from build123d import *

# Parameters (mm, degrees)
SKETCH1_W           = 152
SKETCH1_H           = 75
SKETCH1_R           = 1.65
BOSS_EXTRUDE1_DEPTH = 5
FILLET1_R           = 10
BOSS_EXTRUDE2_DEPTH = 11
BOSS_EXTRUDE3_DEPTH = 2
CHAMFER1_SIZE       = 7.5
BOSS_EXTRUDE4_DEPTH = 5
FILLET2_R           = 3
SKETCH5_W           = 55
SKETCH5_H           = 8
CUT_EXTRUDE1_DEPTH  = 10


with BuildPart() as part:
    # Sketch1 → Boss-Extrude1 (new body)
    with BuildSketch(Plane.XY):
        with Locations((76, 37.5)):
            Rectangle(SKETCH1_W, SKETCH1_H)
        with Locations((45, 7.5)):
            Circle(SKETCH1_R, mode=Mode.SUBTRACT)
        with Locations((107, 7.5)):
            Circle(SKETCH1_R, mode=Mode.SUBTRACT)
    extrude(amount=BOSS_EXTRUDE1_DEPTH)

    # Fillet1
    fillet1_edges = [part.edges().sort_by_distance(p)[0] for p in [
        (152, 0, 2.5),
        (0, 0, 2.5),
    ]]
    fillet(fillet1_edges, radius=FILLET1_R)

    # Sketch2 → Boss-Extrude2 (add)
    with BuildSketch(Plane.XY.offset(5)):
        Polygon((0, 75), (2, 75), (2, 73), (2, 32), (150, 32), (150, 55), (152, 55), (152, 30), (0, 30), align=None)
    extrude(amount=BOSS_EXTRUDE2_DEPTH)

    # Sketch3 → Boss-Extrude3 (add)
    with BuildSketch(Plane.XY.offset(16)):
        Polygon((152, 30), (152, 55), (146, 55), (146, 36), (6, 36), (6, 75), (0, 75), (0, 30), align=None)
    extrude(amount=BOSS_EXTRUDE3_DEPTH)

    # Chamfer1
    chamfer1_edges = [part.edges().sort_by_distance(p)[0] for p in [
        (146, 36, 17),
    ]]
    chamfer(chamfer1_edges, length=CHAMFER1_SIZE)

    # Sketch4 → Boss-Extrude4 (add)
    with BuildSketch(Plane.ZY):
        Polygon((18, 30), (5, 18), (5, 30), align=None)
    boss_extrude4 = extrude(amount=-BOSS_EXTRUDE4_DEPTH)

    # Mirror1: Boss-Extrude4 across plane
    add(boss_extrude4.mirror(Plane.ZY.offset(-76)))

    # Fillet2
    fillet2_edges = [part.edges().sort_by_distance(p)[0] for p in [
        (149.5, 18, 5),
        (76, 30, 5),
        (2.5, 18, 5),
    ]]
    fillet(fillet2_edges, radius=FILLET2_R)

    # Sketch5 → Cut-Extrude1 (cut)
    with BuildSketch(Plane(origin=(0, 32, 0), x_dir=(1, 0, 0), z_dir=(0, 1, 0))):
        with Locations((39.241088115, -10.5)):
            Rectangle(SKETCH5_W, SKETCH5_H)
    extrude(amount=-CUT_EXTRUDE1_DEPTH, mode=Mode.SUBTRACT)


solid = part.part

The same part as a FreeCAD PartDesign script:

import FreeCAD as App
import Part
import Sketcher

V = App.Vector
Q = App.Units.Quantity


def edges_at(feature, points):
    """Names of the edges that pass closest to the given points."""
    edges = feature.Shape.Edges
    near = lambda p: min(range(len(edges)), key=lambda i: edges[i].distToShape(Part.Vertex(*p))[0])
    return sorted({f"Edge{near(p) + 1}" for p in points})


def add_polygon(sketch, points):
    """Adds a closed chain of lines whose ends are joined by coincident constraints."""
    first, n = sketch.GeometryCount, len(points)
    for a, b in zip(points, points[1:] + points[:1]):
        sketch.addGeometry(Part.LineSegment(App.Vector(*a, 0), App.Vector(*b, 0)), False)
    for i in range(n):
        sketch.addConstraint(Sketcher.Constraint("Coincident", first + i, 2, first + (i + 1) % n, 1))

doc = App.newDocument("Part")
body = doc.addObject("PartDesign::Body", "Body")

sketch1 = doc.addObject("Sketcher::SketchObject", "Sketch")
body.addObject(sketch1)
sketch1.AttachmentSupport = (doc.XY_Plane, [""])
sketch1.MapMode = "FlatFace"
add_polygon(sketch1, [(0, 75), (0, 0), (152, 0), (152, 75)])
sketch1.addGeometry(Part.Circle(V(45, 7.5, 0), V(0, 0, 1), 1.6), False)
sketch1.addGeometry(Part.Circle(V(107, 7.5, 0), V(0, 0, 1), 1.6), False)
sketch1.addConstraint([
    Sketcher.Constraint("Vertical", 0),
    Sketcher.Constraint("Horizontal", 1),
    Sketcher.Constraint("Vertical", 2),
    Sketcher.Constraint("Horizontal", 3),
    Sketcher.Constraint("Coincident", 0, 2, -1, 1),
    Sketcher.Constraint("Equal", 4, 5),
    Sketcher.Constraint("Horizontal", 4, 3, 5, 3),
    Sketcher.Constraint("Diameter", 4, Q("3.3 mm")),
    Sketcher.Constraint("DistanceX", 1, 1, 1, 2, Q("152 mm")),
    Sketcher.Constraint("DistanceY", 0, 2, 0, 1, Q("75 mm")),
    Sketcher.Constraint("DistanceX", -1, 1, 4, 3, Q("45 mm")),
    Sketcher.Constraint("DistanceX", -1, 1, 5, 3, Q("107 mm")),
    Sketcher.Constraint("DistanceY", -1, 1, 4, 3, Q("7.5 mm")),
])
pad1 = doc.addObject("PartDesign::Pad", "Pad")
body.addObject(pad1)
pad1.Profile = sketch1
pad1.Length = 5
doc.recompute()

fillet = doc.addObject("PartDesign::Fillet", "Fillet")
body.addObject(fillet)
fillet.Base = (pad1, edges_at(pad1, [(152, 0, 2.5), (0, 0, 2.5)]))
fillet.Radius = 10

sketch2 = doc.addObject("Sketcher::SketchObject", "Sketch001")
body.addObject(sketch2)
sketch2.AttachmentSupport = (doc.XY_Plane, [""])
sketch2.MapMode = "FlatFace"
sketch2.AttachmentOffset = App.Placement(V(0, 0, 5), App.Rotation())
add_polygon(sketch2, [(2, 75), (0, 75), (0, 30), (152, 30), (152, 55), (150, 55), (150, 32), (2, 32)])
sketch2.addConstraint([
    Sketcher.Constraint("Horizontal", 0),
    Sketcher.Constraint("Vertical", 1),
    Sketcher.Constraint("Horizontal", 2),
    Sketcher.Constraint("Vertical", 3),
    Sketcher.Constraint("Horizontal", 4),
    Sketcher.Constraint("Vertical", 5),
    Sketcher.Constraint("Horizontal", 6),
    Sketcher.Constraint("Vertical", 7),
    Sketcher.Constraint("PointOnObject", 0, 2, -2),
    Sketcher.Constraint("Equal", 0, 4),
    Sketcher.Constraint("DistanceX", 0, 2, 0, 1, Q("2 mm")),
    Sketcher.Constraint("DistanceX", 2, 1, 2, 2, Q("152 mm")),
    Sketcher.Constraint("DistanceY", 1, 2, 1, 1, Q("45 mm")),
    Sketcher.Constraint("DistanceY", 3, 1, 3, 2, Q("25 mm")),
    Sketcher.Constraint("DistanceY", 5, 2, 5, 1, Q("23 mm")),
    Sketcher.Constraint("DistanceY", -1, 1, 0, 2, Q("75 mm")),
])
pad2 = doc.addObject("PartDesign::Pad", "Pad001")
body.addObject(pad2)
pad2.Profile = sketch2
pad2.Length = 11

sketch3 = doc.addObject("Sketcher::SketchObject", "Sketch002")
body.addObject(sketch3)
sketch3.AttachmentSupport = (doc.XY_Plane, [""])
sketch3.MapMode = "FlatFace"
sketch3.AttachmentOffset = App.Placement(V(0, 0, 16), App.Rotation())
add_polygon(sketch3, [(152, 30), (152, 55), (146, 55), (146, 36), (6, 36), (6, 75), (0, 75), (0, 30)])
sketch3.addConstraint([
    Sketcher.Constraint("Vertical", 0),
    Sketcher.Constraint("Horizontal", 1),
    Sketcher.Constraint("Vertical", 2),
    Sketcher.Constraint("Horizontal", 3),
    Sketcher.Constraint("Vertical", 4),
    Sketcher.Constraint("Horizontal", 5),
    Sketcher.Constraint("Vertical", 6),
    Sketcher.Constraint("Horizontal", 7),
    Sketcher.Constraint("PointOnObject", 5, 2, -2),
    Sketcher.Constraint("Equal", 1, 5),
    Sketcher.Constraint("DistanceX", 1, 2, 1, 1, Q("6 mm")),
    Sketcher.Constraint("DistanceX", 3, 2, 3, 1, Q("140 mm")),
    Sketcher.Constraint("DistanceY", 0, 1, 0, 2, Q("25 mm")),
    Sketcher.Constraint("DistanceY", 2, 2, 2, 1, Q("19 mm")),
    Sketcher.Constraint("DistanceY", 4, 1, 4, 2, Q("39 mm")),
    Sketcher.Constraint("DistanceY", -1, 1, 0, 2, Q("55 mm")),
])
pad3 = doc.addObject("PartDesign::Pad", "Pad002")
body.addObject(pad3)
pad3.Profile = sketch3
pad3.Length = 2
doc.recompute()

chamfer = doc.addObject("PartDesign::Chamfer", "Chamfer")
body.addObject(chamfer)
chamfer.Base = (pad3, edges_at(pad3, [(146, 36, 17)]))
chamfer.Size = 7.5

sketch4 = doc.addObject("Sketcher::SketchObject", "Sketch003")
body.addObject(sketch4)
sketch4.AttachmentSupport = (doc.YZ_Plane, [""])
sketch4.MapMode = "FlatFace"
add_polygon(sketch4, [(18, 5), (30, 18), (30, 5)])
sketch4.addConstraint([
    Sketcher.Constraint("Vertical", 1),
    Sketcher.Constraint("Horizontal", 2),
    Sketcher.Constraint("DistanceX", 2, 2, 2, 1, Q("12 mm")),
    Sketcher.Constraint("DistanceY", 1, 2, 1, 1, Q("13 mm")),
    Sketcher.Constraint("DistanceX", -1, 1, 0, 2, Q("30 mm")),
    Sketcher.Constraint("DistanceY", -1, 1, 0, 2, Q("18 mm")),
])
pad4 = doc.addObject("PartDesign::Pad", "Pad003")
body.addObject(pad4)
pad4.Profile = sketch4
pad4.Length = 5
doc.recompute()

datumplane = doc.addObject("PartDesign::Plane", "DatumPlane")
body.addObject(datumplane)
datumplane.AttachmentSupport = (doc.YZ_Plane, [""])
datumplane.MapMode = "FlatFace"
datumplane.AttachmentOffset = App.Placement(V(0, 0, 76), App.Rotation())
mirrored = doc.addObject("PartDesign::Mirrored", "Mirrored")
body.addObject(mirrored)
mirrored.Originals = [pad4]
mirrored.MirrorPlane = (datumplane, [""])
body.Tip = mirrored
doc.recompute()

fillet2 = doc.addObject("PartDesign::Fillet", "Fillet001")
body.addObject(fillet2)
fillet2.Base = (mirrored, edges_at(mirrored, [(149.5, 18, 5), (76, 30, 5), (2.5, 18, 5)]))
fillet2.Radius = 3

sketch5 = doc.addObject("Sketcher::SketchObject", "Sketch004")
body.addObject(sketch5)
sketch5.AttachmentSupport = (doc.XZ_Plane, [""])
sketch5.MapMode = "FlatFace"
sketch5.AttachmentOffset = App.Placement(V(0, 0, -32), App.Rotation())
add_polygon(sketch5, [(12, 6), (12, 14), (67, 14), (67, 6)])
sketch5.addConstraint([
    Sketcher.Constraint("Vertical", 0),
    Sketcher.Constraint("Horizontal", 1),
    Sketcher.Constraint("Vertical", 2),
    Sketcher.Constraint("Horizontal", 3),
    Sketcher.Constraint("DistanceX", 1, 1, 1, 2, Q("55 mm")),
    Sketcher.Constraint("DistanceY", 0, 1, 0, 2, Q("8 mm")),
    Sketcher.Constraint("DistanceY", -1, 1, 0, 2, Q("14.5 mm")),
    Sketcher.Constraint("DistanceX", -1, 1, 0, 2, Q("11.741088 mm")),
])
pocket1 = doc.addObject("PartDesign::Pocket", "Pocket")
body.addObject(pocket1)
pocket1.Profile = sketch5
pocket1.Length = 10
pocket1.Reversed = True

doc.recompute()
